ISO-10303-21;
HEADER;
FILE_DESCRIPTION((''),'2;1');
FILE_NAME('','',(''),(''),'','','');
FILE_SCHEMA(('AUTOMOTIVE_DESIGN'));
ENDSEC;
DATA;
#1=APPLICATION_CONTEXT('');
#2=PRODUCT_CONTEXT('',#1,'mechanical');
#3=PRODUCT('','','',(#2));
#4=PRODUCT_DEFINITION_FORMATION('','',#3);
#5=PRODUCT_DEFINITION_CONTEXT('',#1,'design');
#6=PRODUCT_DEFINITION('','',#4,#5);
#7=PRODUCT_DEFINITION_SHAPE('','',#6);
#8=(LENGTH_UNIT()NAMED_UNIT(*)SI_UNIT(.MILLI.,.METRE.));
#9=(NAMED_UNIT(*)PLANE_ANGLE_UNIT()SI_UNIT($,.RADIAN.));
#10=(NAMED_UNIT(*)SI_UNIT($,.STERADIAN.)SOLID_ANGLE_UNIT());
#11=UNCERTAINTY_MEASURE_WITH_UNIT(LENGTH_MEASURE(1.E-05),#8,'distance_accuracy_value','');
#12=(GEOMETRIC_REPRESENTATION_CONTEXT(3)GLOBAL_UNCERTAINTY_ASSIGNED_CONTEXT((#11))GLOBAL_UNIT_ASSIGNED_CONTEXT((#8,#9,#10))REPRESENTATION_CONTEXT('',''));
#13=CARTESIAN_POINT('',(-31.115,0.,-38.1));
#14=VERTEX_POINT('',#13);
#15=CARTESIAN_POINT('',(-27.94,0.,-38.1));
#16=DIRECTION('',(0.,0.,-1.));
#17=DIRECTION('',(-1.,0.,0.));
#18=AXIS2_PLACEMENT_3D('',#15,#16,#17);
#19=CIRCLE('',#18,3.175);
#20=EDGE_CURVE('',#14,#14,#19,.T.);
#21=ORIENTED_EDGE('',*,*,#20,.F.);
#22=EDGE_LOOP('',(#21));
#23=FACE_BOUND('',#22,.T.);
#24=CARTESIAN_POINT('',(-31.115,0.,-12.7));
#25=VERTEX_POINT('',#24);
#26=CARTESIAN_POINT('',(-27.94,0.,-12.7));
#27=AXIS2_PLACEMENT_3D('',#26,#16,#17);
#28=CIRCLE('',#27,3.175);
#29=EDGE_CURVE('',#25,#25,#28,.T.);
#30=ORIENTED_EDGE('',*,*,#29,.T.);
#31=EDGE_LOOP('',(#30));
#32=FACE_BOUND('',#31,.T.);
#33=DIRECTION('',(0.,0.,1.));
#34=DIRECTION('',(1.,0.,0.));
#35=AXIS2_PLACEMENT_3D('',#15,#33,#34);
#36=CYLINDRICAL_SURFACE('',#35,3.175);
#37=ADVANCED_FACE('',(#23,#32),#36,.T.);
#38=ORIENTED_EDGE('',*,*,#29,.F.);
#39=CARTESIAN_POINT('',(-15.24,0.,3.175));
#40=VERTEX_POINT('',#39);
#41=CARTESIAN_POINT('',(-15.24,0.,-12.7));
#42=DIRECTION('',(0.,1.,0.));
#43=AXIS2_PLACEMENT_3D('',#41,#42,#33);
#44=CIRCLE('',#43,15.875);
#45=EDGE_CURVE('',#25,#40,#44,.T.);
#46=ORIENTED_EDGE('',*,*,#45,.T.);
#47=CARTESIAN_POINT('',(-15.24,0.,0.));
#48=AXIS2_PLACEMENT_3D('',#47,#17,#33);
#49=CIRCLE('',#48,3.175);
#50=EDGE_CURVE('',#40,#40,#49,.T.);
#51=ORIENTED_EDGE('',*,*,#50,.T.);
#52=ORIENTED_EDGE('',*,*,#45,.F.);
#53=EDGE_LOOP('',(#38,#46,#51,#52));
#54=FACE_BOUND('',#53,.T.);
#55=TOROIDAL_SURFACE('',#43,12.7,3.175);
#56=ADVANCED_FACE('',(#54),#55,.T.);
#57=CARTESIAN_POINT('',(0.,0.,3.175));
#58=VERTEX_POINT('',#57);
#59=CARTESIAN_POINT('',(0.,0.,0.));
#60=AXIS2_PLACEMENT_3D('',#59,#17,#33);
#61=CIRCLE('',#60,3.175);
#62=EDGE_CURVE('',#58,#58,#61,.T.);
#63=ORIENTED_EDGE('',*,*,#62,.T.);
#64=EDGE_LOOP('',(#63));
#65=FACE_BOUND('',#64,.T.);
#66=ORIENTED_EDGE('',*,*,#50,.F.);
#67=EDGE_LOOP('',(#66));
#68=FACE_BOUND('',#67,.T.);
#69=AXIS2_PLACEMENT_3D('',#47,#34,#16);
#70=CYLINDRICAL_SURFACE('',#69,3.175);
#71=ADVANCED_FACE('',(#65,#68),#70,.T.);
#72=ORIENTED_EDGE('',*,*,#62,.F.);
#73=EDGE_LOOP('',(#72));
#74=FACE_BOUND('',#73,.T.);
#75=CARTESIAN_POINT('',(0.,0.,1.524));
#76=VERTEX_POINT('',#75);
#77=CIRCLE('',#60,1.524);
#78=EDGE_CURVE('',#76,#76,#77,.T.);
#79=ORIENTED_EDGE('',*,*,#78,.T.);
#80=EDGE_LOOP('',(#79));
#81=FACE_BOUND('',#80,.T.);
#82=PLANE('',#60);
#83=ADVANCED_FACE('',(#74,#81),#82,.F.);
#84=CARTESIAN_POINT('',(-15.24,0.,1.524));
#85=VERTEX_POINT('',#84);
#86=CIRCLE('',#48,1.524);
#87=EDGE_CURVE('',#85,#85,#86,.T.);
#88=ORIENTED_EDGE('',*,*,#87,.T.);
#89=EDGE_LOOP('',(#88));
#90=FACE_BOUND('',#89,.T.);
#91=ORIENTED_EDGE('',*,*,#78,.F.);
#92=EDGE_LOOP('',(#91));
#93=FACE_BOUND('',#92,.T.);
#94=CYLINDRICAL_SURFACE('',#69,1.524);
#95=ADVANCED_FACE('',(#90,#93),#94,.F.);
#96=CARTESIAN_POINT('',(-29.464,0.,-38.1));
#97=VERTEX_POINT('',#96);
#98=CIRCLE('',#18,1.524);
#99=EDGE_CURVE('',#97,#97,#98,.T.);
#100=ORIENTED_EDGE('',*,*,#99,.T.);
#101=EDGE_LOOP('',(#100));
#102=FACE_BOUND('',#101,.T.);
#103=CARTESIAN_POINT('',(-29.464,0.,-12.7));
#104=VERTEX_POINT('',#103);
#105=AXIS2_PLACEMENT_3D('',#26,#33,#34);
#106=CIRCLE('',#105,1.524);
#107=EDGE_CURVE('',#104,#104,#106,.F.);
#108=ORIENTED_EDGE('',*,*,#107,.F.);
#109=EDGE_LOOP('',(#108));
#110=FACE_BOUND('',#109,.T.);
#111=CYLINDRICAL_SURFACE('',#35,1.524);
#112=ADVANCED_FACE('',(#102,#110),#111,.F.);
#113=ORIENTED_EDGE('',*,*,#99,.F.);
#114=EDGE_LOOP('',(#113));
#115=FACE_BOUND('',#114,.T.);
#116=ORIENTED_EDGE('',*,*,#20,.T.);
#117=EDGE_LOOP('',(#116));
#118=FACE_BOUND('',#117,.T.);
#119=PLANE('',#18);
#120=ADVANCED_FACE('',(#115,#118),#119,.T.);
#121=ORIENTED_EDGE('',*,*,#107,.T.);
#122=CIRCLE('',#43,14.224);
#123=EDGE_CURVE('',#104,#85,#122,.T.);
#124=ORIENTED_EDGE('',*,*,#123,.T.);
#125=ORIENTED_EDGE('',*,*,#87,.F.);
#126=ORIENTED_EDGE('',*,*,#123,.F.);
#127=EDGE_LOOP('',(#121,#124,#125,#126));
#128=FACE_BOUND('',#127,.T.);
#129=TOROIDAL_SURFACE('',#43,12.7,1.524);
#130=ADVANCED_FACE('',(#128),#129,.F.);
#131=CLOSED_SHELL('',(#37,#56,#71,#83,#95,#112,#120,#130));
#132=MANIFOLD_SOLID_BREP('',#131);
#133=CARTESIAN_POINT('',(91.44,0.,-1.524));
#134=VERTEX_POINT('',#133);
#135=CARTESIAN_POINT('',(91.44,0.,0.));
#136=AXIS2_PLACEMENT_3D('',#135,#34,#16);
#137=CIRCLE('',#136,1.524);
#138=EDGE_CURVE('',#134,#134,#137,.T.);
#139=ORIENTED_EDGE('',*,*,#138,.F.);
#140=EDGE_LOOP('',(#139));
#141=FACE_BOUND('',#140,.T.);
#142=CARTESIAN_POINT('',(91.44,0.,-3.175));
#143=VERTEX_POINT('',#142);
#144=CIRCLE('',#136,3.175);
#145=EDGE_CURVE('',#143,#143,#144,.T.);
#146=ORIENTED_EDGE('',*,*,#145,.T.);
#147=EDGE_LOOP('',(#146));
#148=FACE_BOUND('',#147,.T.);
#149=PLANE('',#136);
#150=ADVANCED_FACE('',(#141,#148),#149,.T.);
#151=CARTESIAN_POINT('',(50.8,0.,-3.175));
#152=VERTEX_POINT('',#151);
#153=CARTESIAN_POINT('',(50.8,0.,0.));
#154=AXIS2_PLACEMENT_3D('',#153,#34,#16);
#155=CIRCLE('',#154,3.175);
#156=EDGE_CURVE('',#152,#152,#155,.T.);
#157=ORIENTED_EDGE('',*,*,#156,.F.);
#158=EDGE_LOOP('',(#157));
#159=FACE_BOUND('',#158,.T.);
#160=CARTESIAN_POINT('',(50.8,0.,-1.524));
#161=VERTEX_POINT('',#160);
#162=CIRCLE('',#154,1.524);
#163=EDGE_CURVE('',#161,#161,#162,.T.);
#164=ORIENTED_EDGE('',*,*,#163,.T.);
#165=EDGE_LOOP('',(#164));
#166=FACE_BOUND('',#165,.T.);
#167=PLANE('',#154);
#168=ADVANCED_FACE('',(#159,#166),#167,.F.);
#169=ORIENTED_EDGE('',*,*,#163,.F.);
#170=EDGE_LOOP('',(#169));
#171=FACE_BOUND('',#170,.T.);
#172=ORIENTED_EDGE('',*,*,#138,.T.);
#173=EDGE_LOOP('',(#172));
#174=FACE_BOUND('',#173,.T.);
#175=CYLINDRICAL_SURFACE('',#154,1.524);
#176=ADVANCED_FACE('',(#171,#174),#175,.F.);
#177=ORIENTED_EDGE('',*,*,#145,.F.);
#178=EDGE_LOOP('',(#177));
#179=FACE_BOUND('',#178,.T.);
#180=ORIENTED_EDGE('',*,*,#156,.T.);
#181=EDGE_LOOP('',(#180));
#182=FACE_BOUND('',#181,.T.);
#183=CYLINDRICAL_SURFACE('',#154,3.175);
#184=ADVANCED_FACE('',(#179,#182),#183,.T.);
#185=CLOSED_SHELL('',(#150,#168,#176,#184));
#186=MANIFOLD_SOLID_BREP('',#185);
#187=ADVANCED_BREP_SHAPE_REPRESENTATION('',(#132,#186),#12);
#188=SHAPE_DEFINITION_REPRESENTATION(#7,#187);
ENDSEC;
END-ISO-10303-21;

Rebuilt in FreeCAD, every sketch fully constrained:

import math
import FreeCAD as App
import Part
import Sketcher
from FreeCAD import Vector
Q = App.Units.Quantity

doc = App.newDocument("Part")
body = doc.addObject("PartDesign::Body", "Body")

# Sketch on XY plane
sketch1 = body.newObject("Sketcher::SketchObject", "Sketch")
sketch1.AttachmentSupport = (doc.getObject("XY_Plane"), [""])
sketch1.MapMode = "FlatFace"
sketch1.AttachmentOffset = App.Placement(Vector(0, 0, -1.5 * 25.4), App.Rotation())
sketch1.addGeometry([
    Part.Circle(Vector(-27.9, 0, 0), Vector(0, 0, 1), 3.2),
    Part.Circle(Vector(-27.9, 0, 0), Vector(0, 0, 1), 1.5),
], False)
sketch1.addConstraint([
    Sketcher.Constraint("Coincident", 1, 3, 0, 3),
    Sketcher.Constraint("PointOnObject", 0, 3, -1),
    Sketcher.Constraint("Diameter", 0, Q("0.25 in")),
    Sketcher.Constraint("Diameter", 1, Q("0.12 in")),
    Sketcher.Constraint("DistanceX", 0, 3, -1, 1, Q("1.1 in")),
])

# Sketch on XZ plane
sketch2 = body.newObject("Sketcher::SketchObject", "Sketch001")
sketch2.AttachmentSupport = (doc.getObject("XZ_Plane"), [""])
sketch2.MapMode = "FlatFace"
sketch2.addGeometry([
    Part.LineSegment(Vector(-28, -38, 0), Vector(-28, -13, 0)),
    Part.ArcOfCircle(Part.Circle(Vector(-15, -13, 0), Vector(0, 0, 1), 13), math.radians(90), math.radians(180)),
    Part.LineSegment(Vector(-15, 0, 0), Vector(0, 0, 0)),
], False)
sketch2.addConstraint([
    Sketcher.Constraint("Tangent", 0, 2, 1, 2),
    Sketcher.Constraint("Tangent", 1, 1, 2, 1),
    Sketcher.Constraint("Vertical", 0),
    Sketcher.Constraint("Horizontal", 2),
    Sketcher.Constraint("Coincident", 2, 2, -1, 1),
    Sketcher.Constraint("Radius", 1, Q("0.5 in")),
    Sketcher.Constraint("DistanceY", 0, 1, 0, 2, Q("1 in")),
    Sketcher.Constraint("DistanceX", 2, 1, 2, 2, Q("0.6 in")),
])
doc.recompute()

additivepipe = body.newObject("PartDesign::AdditivePipe", "AdditivePipe")
additivepipe.Profile = sketch1
additivepipe.Spine = (sketch2, ["Edge1", "Edge2", "Edge3"])
body2 = doc.addObject("PartDesign::Body", "Body001")

# Sketch on YZ plane
sketch3 = body2.newObject("Sketcher::SketchObject", "Sketch002")
sketch3.AttachmentSupport = (doc.getObject("YZ_Plane001"), [""])
sketch3.MapMode = "FlatFace"
sketch3.AttachmentOffset = App.Placement(Vector(0, 0, 2 * 25.4), App.Rotation())
sketch3.addGeometry([
    Part.Circle(Vector(0, 0, 0), Vector(0, 0, 1), 3.2),
    Part.Circle(Vector(0, 0, 0), Vector(0, 0, 1), 1.5),
], False)
sketch3.addConstraint([
    Sketcher.Constraint("Coincident", 0, 3, -1, 1),
    Sketcher.Constraint("Coincident", 1, 3, -1, 1),
    Sketcher.Constraint("Diameter", 0, Q("0.25 in")),
    Sketcher.Constraint("Diameter", 1, Q("0.12 in")),
])

# Sketch on XY plane
sketch4 = body2.newObject("Sketcher::SketchObject", "Sketch003")
sketch4.AttachmentSupport = (doc.getObject("XY_Plane001"), [""])
sketch4.MapMode = "FlatFace"
sketch4.addGeometry(Part.LineSegment(Vector(51, 0, 0), Vector(91, 0, 0)), False)
sketch4.addConstraint([
    Sketcher.Constraint("Horizontal", 0),
    Sketcher.Constraint("PointOnObject", 0, 1, -1),
    Sketcher.Constraint("DistanceX", 0, 1, 0, 2, Q("1.6 in")),
    Sketcher.Constraint("DistanceX", -1, 1, 0, 1, Q("2 in")),
])
doc.recompute()

additivepipe2 = body2.newObject("PartDesign::AdditivePipe", "AdditivePipe001")
additivepipe2.Profile = sketch3
additivepipe2.Spine = (sketch4, ["Edge1"])

doc.recompute()
